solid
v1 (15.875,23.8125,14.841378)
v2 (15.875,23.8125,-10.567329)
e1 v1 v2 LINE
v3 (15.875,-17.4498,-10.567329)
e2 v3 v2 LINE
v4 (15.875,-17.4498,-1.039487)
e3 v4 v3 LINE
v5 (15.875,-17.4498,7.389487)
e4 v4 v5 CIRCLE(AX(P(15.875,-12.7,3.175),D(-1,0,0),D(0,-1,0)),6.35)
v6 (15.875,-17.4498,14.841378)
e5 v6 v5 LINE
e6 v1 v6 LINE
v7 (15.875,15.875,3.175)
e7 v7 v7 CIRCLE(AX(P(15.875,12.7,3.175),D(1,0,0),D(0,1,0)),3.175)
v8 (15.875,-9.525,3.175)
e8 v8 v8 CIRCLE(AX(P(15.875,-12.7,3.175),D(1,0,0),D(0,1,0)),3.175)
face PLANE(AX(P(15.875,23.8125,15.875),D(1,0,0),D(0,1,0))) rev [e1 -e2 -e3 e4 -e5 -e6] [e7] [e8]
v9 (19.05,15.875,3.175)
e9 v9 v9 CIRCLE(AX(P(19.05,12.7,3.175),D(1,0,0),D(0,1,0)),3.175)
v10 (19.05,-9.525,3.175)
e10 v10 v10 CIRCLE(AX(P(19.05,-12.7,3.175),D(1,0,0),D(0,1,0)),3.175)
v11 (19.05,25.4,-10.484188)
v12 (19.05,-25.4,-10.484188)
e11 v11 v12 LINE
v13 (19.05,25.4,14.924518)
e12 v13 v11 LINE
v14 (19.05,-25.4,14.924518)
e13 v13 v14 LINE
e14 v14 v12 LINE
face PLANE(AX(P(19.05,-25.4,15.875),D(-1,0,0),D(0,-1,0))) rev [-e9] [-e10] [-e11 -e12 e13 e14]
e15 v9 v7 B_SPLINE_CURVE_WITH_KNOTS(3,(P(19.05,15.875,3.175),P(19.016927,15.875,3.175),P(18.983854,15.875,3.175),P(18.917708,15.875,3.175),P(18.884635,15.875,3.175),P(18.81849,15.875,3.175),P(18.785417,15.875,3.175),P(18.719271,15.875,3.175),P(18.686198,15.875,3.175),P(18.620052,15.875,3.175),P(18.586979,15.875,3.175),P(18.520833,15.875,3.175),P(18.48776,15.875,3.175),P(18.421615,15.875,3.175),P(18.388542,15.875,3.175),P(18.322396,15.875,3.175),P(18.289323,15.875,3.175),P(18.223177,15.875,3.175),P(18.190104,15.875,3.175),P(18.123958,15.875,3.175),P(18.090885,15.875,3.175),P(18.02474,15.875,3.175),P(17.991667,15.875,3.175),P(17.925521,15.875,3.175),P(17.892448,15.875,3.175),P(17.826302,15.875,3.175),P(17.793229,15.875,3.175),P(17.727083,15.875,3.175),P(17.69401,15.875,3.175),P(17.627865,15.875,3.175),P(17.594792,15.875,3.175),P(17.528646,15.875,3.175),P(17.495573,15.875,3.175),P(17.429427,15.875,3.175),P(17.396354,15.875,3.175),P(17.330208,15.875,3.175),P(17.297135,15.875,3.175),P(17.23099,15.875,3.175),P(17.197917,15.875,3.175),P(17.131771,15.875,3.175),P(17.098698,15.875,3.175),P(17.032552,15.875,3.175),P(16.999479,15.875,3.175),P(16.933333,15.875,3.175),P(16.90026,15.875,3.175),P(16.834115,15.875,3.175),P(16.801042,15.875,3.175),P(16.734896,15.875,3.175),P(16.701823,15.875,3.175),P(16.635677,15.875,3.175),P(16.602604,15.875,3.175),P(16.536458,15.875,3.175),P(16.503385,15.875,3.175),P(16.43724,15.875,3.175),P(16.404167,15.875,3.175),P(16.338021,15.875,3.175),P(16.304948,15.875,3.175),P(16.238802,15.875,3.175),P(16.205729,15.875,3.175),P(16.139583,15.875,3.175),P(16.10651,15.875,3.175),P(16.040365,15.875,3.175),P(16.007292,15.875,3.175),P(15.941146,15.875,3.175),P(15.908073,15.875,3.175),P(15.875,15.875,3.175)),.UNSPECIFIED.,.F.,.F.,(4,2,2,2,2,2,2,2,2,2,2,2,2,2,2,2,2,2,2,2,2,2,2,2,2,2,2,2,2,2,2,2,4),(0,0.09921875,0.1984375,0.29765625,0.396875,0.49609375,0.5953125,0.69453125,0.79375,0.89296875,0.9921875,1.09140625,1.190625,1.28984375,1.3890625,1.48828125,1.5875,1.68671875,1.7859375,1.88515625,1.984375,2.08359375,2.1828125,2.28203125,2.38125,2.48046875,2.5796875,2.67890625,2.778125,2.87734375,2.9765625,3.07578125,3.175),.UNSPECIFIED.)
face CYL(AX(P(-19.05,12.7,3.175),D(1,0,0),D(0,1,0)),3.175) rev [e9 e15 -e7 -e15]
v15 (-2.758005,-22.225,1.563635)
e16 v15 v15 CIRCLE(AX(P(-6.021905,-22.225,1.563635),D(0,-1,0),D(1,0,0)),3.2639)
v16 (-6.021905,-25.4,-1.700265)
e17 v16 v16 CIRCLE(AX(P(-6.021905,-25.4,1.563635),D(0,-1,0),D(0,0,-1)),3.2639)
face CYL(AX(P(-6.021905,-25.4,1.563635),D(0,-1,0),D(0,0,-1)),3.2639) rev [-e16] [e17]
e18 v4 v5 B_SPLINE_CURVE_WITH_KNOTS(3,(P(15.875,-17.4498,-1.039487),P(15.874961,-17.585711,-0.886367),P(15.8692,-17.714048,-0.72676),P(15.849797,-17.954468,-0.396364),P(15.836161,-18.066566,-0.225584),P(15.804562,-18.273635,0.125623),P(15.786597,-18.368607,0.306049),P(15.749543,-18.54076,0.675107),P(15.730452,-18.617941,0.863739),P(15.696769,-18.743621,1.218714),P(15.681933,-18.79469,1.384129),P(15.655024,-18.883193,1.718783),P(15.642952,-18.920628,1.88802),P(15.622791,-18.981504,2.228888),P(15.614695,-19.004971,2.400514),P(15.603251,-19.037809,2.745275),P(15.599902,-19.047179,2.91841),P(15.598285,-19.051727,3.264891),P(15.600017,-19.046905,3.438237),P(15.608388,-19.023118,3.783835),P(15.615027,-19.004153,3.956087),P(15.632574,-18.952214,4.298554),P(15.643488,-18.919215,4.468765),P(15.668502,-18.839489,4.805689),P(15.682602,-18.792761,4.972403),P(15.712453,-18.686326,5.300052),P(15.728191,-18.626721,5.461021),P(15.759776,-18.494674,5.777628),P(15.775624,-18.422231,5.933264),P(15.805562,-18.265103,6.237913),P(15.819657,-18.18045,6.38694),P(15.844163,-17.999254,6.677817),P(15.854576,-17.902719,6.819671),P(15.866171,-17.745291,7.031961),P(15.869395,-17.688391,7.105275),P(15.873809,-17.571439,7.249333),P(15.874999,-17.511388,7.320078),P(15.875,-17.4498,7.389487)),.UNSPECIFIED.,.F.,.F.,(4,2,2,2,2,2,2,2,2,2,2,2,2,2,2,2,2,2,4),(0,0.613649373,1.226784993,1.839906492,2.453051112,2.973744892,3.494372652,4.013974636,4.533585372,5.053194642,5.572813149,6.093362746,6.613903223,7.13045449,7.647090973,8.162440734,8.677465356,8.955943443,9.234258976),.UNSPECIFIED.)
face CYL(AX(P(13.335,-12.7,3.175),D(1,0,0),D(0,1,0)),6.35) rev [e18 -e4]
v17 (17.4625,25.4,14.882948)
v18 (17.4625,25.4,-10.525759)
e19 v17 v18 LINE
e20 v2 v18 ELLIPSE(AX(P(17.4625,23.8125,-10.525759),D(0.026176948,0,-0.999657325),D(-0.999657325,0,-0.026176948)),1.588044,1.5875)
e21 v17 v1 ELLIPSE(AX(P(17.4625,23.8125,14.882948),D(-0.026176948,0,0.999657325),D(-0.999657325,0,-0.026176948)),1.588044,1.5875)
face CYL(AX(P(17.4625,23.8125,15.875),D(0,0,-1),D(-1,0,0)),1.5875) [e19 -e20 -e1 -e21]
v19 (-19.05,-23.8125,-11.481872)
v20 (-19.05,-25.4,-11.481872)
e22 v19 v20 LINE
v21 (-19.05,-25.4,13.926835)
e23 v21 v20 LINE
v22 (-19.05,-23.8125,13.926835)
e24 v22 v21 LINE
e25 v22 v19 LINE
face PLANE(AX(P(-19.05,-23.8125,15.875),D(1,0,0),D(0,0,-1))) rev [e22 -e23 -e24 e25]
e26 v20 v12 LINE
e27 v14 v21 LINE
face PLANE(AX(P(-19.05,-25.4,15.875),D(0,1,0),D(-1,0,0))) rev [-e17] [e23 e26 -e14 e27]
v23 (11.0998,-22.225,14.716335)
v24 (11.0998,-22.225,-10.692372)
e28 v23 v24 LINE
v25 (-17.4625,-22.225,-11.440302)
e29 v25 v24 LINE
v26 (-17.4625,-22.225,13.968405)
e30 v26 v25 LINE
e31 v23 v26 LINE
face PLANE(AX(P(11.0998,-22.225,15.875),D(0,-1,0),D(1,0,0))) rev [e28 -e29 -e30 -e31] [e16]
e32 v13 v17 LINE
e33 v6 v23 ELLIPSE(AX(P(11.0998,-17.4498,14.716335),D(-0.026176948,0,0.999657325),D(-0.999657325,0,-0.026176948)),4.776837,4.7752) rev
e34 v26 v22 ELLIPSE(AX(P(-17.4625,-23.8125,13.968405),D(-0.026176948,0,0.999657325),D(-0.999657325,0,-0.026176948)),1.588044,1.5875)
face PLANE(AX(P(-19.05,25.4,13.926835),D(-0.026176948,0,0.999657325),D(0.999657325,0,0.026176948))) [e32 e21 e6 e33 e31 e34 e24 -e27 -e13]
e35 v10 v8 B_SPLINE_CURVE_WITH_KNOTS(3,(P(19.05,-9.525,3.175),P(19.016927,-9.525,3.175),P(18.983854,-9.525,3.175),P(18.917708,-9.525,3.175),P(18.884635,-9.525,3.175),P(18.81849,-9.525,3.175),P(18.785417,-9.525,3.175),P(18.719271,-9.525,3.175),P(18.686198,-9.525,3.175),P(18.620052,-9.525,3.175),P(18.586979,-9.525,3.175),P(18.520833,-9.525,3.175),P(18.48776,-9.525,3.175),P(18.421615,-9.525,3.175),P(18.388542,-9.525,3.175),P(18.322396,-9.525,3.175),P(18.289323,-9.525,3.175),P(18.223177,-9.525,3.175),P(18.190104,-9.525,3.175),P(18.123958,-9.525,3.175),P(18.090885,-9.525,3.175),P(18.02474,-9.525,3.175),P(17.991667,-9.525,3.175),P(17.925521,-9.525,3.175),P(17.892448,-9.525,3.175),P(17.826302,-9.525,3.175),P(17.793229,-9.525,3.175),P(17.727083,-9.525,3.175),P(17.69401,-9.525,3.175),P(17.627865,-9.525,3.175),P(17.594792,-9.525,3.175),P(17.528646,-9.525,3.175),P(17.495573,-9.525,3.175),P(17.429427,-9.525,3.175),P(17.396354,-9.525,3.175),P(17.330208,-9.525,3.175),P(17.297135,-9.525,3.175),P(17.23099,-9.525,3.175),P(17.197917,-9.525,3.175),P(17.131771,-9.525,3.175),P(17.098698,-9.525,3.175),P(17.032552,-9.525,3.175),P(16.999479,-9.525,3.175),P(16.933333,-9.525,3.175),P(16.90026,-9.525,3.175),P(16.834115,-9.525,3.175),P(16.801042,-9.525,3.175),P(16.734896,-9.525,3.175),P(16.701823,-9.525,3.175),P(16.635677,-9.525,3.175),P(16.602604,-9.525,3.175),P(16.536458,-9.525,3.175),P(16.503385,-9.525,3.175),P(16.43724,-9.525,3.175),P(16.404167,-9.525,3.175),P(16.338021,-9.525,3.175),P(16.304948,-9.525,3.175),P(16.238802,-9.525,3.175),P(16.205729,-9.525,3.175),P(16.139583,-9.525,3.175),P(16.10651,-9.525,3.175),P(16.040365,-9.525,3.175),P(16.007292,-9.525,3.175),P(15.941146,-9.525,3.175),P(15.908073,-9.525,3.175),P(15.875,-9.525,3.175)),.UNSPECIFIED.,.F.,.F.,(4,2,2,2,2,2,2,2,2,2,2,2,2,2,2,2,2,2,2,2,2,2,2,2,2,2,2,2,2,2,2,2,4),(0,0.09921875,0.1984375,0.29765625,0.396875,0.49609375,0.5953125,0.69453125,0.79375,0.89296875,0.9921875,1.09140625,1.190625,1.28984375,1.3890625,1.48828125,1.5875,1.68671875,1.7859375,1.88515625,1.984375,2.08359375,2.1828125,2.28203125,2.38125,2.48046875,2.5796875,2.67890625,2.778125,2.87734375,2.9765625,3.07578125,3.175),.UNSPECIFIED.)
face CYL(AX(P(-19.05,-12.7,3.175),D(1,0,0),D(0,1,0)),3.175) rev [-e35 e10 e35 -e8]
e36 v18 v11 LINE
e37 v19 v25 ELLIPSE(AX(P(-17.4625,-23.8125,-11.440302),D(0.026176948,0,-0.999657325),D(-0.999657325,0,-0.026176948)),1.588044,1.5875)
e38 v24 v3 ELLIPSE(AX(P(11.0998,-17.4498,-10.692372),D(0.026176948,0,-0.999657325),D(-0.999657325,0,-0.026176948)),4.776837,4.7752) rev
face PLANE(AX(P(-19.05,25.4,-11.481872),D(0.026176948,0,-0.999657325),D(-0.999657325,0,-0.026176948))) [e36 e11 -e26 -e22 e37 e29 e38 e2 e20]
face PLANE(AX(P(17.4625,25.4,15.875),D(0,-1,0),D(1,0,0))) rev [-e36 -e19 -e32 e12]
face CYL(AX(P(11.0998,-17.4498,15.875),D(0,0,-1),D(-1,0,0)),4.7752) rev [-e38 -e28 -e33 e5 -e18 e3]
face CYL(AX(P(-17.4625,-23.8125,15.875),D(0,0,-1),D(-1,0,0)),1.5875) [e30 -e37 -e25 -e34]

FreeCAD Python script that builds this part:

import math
import FreeCAD as App
import Part
import Sketcher
from FreeCAD import Vector
Q = App.Units.Quantity

doc = App.newDocument("Part")
body = doc.addObject("PartDesign::Body", "Body")

# Sketch on XY plane
sketch1 = doc.addObject("Sketcher::SketchObject", "Sketch")
body.addObject(sketch1)
sketch1.AttachmentSupport = (doc.XY_Plane, [""])
sketch1.MapMode = "FlatFace"
sketch1.addGeometry([
    Part.LineSegment(Vector(-19.1, -25.4, 0), Vector(19.1, -25.4, 0)),  # 0
    Part.LineSegment(Vector(19.1, -25.4, 0), Vector(19.1, 25.4, 0)),  # 1
    Part.LineSegment(Vector(19.1, 25.4, 0), Vector(17.5, 25.4, 0)),  # 2
    Part.ArcOfCircle(Part.Circle(Vector(17.5, 23.8, 0), Vector(0, 0, 1), 1.6), math.radians(90), math.radians(180)),  # 3
    Part.LineSegment(Vector(15.9, 23.8, 0), Vector(15.9, -17.4, 0)),  # 4
    Part.ArcOfCircle(Part.Circle(Vector(11.1, -17.4, 0), Vector(0, 0, 1), 4.8), math.radians(-90), math.radians(0)),  # 5
    Part.LineSegment(Vector(11.1, -22.2, 0), Vector(-17.5, -22.2, 0)),  # 6
    Part.ArcOfCircle(Part.Circle(Vector(-17.5, -23.8, 0), Vector(0, 0, 1), 1.6), math.radians(90), math.radians(180)),  # 7
    Part.LineSegment(Vector(-19.1, -23.8, 0), Vector(-19.1, -25.4, 0)),  # 8
], False)
sketch1.addConstraint([
    Sketcher.Constraint("Coincident", 0, 2, 1, 1),
    Sketcher.Constraint("Coincident", 1, 2, 2, 1),
    Sketcher.Constraint("Tangent", 2, 2, 3, 1),
    Sketcher.Constraint("Tangent", 3, 2, 4, 1),
    Sketcher.Constraint("Tangent", 4, 2, 5, 2),
    Sketcher.Constraint("Tangent", 5, 1, 6, 1),
    Sketcher.Constraint("Tangent", 6, 2, 7, 1),
    Sketcher.Constraint("Tangent", 7, 2, 8, 1),
    Sketcher.Constraint("Coincident", 8, 2, 0, 1),
    Sketcher.Constraint("Horizontal", 0),
    Sketcher.Constraint("Vertical", 1),
    Sketcher.Constraint("Horizontal", 2),
    Sketcher.Constraint("Vertical", 4),
    Sketcher.Constraint("Horizontal", 6),
    Sketcher.Constraint("Vertical", 8),
    Sketcher.Constraint("Equal", 3, 7),
    Sketcher.Constraint("Symmetric", 3, 3, 7, 3, -1, 1),
    Sketcher.Constraint("Symmetric", 1, 2, 8, 2, -1, 1),
    Sketcher.Constraint("DistanceY", 1, 1, 1, 2, Q("2 in")),
    Sketcher.Constraint("DistanceX", 0, 1, 0, 2, Q("1.5 in")),
    Sketcher.Constraint("Radius", 3, Q("0.0625 in")),
    Sketcher.Constraint("Radius", 5, Q("0.188 in")),
])
pad1 = doc.addObject("PartDesign::Pad", "Pad")
body.addObject(pad1)
pad1.Profile = sketch1
pad1.Length = Q("1.25 in")
pad1.Midplane = True

# Sketch on YZ plane
sketch2 = doc.addObject("Sketcher::SketchObject", "Sketch001")
body.addObject(sketch2)
sketch2.AttachmentSupport = (doc.YZ_Plane, [""])
sketch2.MapMode = "FlatFace"
sketch2.AttachmentOffset = App.Placement(Vector(0, 0, 0.75 * 25.4), App.Rotation())
sketch2.addGeometry([
    Part.Circle(Vector(12.7, 3.2, 0), Vector(0, 0, 1), 3.2),
    Part.Circle(Vector(-12.7, 3.2, 0), Vector(0, 0, 1), 3.2),
], False)
sketch2.addConstraint([
    Sketcher.Constraint("Equal", 0, 1),
    Sketcher.Constraint("Symmetric", 0, 3, 1, 3, -2),
    Sketcher.Constraint("Diameter", 0, Q("0.25 in")),
    Sketcher.Constraint("DistanceX", 1, 3, 0, 3, Q("1 in")),
    Sketcher.Constraint("DistanceY", -1, 1, 0, 3, Q("0.125 in")),
])
pocket1 = doc.addObject("PartDesign::Pocket", "Pocket")
body.addObject(pocket1)
pocket1.Profile = sketch2
pocket1.Type = "ThroughAll"

# Sketch on XZ plane
sketch3 = doc.addObject("Sketcher::SketchObject", "Sketch002")
body.addObject(sketch3)
sketch3.AttachmentSupport = (doc.XZ_Plane, [""])
sketch3.MapMode = "FlatFace"
sketch3.AttachmentOffset = App.Placement(Vector(0, 0, 1 * 25.4), App.Rotation())
sketch3.addGeometry([
    Part.LineSegment(Vector(-27, 24, 0), Vector(-27, -24, 0)),  # 0
    Part.LineSegment(Vector(-27, -24, 0), Vector(27, -24, 0)),  # 1
    Part.LineSegment(Vector(27, -24, 0), Vector(27, 24, 0)),  # 2
    Part.LineSegment(Vector(27, 24, 0), Vector(-27, 24, 0)),  # 3
    Part.LineSegment(Vector(-19, -11, 0), Vector(-19, 14, 0)),  # 4
    Part.LineSegment(Vector(-19, 14, 0), Vector(19, 15, 0)),  # 5
    Part.LineSegment(Vector(19, 15, 0), Vector(19, -10, 0)),  # 6
    Part.LineSegment(Vector(19, -10, 0), Vector(-19, -11, 0)),  # 7
], False)
sketch3.addConstraint([
    Sketcher.Constraint("Coincident", 0, 2, 1, 1),
    Sketcher.Constraint("Coincident", 1, 2, 2, 1),
    Sketcher.Constraint("Coincident", 2, 2, 3, 1),
    Sketcher.Constraint("Coincident", 3, 2, 0, 1),
    Sketcher.Constraint("Coincident", 4, 2, 5, 1),
    Sketcher.Constraint("Coincident", 5, 2, 6, 1),
    Sketcher.Constraint("Coincident", 6, 2, 7, 1),
    Sketcher.Constraint("Coincident", 7, 2, 4, 1),
    Sketcher.Constraint("Vertical", 0),
    Sketcher.Constraint("Horizontal", 1),
    Sketcher.Constraint("Vertical", 2),
    Sketcher.Constraint("Horizontal", 3),
    Sketcher.Constraint("Vertical", 4),
    Sketcher.Constraint("Vertical", 6),
    Sketcher.Constraint("Symmetric", 0, 2, 2, 2, -1, 1),
    Sketcher.Constraint("Parallel", 5, 7),
    Sketcher.Constraint("Angle", 5, Q("1.5 deg")),
    Sketcher.Constraint("DistanceX", 4, 2, 5, 2, Q("1.5 in")),
    Sketcher.Constraint("DistanceX", 4, 2, -1, 1, Q("0.75 in")),
    Sketcher.Constraint("DistanceX", 1, 1, 1, 2, Q("54.3 mm")),
    Sketcher.Constraint("DistanceY", 0, 2, 0, 1, Q("47.95 mm")),
    Sketcher.Constraint("DistanceY", 4, 1, 4, 2, Q("25.408707 mm")),
    Sketcher.Constraint("DistanceY", -1, 1, 5, 2, Q("14.924518 mm")),
])
pocket2 = doc.addObject("PartDesign::Pocket", "Pocket001")
body.addObject(pocket2)
pocket2.Profile = sketch3
pocket2.Type = "ThroughAll"

# Sketch on XZ plane
sketch4 = doc.addObject("Sketcher::SketchObject", "Sketch003")
body.addObject(sketch4)
sketch4.AttachmentSupport = (doc.XZ_Plane, [""])
sketch4.MapMode = "FlatFace"
sketch4.AttachmentOffset = App.Placement(Vector(0, 0, 1 * 25.4), App.Rotation())
sketch4.addGeometry(Part.Circle(Vector(-6, 1.6, 0), Vector(0, 0, 1), 3.3), False)
sketch4.addConstraint([
    Sketcher.Constraint("Diameter", 0, Q("0.257 in")),
    Sketcher.Constraint("DistanceX", 0, 3, -1, 1, Q("6.021905 mm")),
    Sketcher.Constraint("DistanceY", -1, 1, 0, 3, Q("1.563635 mm")),
])
doc.recompute()
hole = doc.addObject("PartDesign::Hole", "Hole")
body.addObject(hole)
hole.Profile = sketch4
hole.ThreadType = "None"
hole.Diameter = Q("0.257 in")
hole.DepthType = "ThroughAll"

# Sketch on YZ plane
sketch5 = doc.addObject("Sketcher::SketchObject", "Sketch004")
body.addObject(sketch5)
sketch5.AttachmentSupport = (doc.YZ_Plane, [""])
sketch5.MapMode = "FlatFace"
sketch5.AttachmentOffset = App.Placement(Vector(0, 0, 0.625 * 25.4), App.Rotation())
sketch5.addGeometry(Part.Circle(Vector(-13, 3, 0), Vector(0, 0, 1), 6), False)
sketch5.addConstraint([
    Sketcher.Constraint("Diameter", 0, Q("0.5 in")),
    Sketcher.Constraint("DistanceX", 0, 3, -1, 1, Q("0.5 in")),
    Sketcher.Constraint("DistanceY", -1, 1, 0, 3, Q("0.125 in")),
])
pocket3 = doc.addObject("PartDesign::Pocket", "Pocket002")
body.addObject(pocket3)
pocket3.Profile = sketch5
pocket3.Length = Q("0.1 in")

doc.recompute()
